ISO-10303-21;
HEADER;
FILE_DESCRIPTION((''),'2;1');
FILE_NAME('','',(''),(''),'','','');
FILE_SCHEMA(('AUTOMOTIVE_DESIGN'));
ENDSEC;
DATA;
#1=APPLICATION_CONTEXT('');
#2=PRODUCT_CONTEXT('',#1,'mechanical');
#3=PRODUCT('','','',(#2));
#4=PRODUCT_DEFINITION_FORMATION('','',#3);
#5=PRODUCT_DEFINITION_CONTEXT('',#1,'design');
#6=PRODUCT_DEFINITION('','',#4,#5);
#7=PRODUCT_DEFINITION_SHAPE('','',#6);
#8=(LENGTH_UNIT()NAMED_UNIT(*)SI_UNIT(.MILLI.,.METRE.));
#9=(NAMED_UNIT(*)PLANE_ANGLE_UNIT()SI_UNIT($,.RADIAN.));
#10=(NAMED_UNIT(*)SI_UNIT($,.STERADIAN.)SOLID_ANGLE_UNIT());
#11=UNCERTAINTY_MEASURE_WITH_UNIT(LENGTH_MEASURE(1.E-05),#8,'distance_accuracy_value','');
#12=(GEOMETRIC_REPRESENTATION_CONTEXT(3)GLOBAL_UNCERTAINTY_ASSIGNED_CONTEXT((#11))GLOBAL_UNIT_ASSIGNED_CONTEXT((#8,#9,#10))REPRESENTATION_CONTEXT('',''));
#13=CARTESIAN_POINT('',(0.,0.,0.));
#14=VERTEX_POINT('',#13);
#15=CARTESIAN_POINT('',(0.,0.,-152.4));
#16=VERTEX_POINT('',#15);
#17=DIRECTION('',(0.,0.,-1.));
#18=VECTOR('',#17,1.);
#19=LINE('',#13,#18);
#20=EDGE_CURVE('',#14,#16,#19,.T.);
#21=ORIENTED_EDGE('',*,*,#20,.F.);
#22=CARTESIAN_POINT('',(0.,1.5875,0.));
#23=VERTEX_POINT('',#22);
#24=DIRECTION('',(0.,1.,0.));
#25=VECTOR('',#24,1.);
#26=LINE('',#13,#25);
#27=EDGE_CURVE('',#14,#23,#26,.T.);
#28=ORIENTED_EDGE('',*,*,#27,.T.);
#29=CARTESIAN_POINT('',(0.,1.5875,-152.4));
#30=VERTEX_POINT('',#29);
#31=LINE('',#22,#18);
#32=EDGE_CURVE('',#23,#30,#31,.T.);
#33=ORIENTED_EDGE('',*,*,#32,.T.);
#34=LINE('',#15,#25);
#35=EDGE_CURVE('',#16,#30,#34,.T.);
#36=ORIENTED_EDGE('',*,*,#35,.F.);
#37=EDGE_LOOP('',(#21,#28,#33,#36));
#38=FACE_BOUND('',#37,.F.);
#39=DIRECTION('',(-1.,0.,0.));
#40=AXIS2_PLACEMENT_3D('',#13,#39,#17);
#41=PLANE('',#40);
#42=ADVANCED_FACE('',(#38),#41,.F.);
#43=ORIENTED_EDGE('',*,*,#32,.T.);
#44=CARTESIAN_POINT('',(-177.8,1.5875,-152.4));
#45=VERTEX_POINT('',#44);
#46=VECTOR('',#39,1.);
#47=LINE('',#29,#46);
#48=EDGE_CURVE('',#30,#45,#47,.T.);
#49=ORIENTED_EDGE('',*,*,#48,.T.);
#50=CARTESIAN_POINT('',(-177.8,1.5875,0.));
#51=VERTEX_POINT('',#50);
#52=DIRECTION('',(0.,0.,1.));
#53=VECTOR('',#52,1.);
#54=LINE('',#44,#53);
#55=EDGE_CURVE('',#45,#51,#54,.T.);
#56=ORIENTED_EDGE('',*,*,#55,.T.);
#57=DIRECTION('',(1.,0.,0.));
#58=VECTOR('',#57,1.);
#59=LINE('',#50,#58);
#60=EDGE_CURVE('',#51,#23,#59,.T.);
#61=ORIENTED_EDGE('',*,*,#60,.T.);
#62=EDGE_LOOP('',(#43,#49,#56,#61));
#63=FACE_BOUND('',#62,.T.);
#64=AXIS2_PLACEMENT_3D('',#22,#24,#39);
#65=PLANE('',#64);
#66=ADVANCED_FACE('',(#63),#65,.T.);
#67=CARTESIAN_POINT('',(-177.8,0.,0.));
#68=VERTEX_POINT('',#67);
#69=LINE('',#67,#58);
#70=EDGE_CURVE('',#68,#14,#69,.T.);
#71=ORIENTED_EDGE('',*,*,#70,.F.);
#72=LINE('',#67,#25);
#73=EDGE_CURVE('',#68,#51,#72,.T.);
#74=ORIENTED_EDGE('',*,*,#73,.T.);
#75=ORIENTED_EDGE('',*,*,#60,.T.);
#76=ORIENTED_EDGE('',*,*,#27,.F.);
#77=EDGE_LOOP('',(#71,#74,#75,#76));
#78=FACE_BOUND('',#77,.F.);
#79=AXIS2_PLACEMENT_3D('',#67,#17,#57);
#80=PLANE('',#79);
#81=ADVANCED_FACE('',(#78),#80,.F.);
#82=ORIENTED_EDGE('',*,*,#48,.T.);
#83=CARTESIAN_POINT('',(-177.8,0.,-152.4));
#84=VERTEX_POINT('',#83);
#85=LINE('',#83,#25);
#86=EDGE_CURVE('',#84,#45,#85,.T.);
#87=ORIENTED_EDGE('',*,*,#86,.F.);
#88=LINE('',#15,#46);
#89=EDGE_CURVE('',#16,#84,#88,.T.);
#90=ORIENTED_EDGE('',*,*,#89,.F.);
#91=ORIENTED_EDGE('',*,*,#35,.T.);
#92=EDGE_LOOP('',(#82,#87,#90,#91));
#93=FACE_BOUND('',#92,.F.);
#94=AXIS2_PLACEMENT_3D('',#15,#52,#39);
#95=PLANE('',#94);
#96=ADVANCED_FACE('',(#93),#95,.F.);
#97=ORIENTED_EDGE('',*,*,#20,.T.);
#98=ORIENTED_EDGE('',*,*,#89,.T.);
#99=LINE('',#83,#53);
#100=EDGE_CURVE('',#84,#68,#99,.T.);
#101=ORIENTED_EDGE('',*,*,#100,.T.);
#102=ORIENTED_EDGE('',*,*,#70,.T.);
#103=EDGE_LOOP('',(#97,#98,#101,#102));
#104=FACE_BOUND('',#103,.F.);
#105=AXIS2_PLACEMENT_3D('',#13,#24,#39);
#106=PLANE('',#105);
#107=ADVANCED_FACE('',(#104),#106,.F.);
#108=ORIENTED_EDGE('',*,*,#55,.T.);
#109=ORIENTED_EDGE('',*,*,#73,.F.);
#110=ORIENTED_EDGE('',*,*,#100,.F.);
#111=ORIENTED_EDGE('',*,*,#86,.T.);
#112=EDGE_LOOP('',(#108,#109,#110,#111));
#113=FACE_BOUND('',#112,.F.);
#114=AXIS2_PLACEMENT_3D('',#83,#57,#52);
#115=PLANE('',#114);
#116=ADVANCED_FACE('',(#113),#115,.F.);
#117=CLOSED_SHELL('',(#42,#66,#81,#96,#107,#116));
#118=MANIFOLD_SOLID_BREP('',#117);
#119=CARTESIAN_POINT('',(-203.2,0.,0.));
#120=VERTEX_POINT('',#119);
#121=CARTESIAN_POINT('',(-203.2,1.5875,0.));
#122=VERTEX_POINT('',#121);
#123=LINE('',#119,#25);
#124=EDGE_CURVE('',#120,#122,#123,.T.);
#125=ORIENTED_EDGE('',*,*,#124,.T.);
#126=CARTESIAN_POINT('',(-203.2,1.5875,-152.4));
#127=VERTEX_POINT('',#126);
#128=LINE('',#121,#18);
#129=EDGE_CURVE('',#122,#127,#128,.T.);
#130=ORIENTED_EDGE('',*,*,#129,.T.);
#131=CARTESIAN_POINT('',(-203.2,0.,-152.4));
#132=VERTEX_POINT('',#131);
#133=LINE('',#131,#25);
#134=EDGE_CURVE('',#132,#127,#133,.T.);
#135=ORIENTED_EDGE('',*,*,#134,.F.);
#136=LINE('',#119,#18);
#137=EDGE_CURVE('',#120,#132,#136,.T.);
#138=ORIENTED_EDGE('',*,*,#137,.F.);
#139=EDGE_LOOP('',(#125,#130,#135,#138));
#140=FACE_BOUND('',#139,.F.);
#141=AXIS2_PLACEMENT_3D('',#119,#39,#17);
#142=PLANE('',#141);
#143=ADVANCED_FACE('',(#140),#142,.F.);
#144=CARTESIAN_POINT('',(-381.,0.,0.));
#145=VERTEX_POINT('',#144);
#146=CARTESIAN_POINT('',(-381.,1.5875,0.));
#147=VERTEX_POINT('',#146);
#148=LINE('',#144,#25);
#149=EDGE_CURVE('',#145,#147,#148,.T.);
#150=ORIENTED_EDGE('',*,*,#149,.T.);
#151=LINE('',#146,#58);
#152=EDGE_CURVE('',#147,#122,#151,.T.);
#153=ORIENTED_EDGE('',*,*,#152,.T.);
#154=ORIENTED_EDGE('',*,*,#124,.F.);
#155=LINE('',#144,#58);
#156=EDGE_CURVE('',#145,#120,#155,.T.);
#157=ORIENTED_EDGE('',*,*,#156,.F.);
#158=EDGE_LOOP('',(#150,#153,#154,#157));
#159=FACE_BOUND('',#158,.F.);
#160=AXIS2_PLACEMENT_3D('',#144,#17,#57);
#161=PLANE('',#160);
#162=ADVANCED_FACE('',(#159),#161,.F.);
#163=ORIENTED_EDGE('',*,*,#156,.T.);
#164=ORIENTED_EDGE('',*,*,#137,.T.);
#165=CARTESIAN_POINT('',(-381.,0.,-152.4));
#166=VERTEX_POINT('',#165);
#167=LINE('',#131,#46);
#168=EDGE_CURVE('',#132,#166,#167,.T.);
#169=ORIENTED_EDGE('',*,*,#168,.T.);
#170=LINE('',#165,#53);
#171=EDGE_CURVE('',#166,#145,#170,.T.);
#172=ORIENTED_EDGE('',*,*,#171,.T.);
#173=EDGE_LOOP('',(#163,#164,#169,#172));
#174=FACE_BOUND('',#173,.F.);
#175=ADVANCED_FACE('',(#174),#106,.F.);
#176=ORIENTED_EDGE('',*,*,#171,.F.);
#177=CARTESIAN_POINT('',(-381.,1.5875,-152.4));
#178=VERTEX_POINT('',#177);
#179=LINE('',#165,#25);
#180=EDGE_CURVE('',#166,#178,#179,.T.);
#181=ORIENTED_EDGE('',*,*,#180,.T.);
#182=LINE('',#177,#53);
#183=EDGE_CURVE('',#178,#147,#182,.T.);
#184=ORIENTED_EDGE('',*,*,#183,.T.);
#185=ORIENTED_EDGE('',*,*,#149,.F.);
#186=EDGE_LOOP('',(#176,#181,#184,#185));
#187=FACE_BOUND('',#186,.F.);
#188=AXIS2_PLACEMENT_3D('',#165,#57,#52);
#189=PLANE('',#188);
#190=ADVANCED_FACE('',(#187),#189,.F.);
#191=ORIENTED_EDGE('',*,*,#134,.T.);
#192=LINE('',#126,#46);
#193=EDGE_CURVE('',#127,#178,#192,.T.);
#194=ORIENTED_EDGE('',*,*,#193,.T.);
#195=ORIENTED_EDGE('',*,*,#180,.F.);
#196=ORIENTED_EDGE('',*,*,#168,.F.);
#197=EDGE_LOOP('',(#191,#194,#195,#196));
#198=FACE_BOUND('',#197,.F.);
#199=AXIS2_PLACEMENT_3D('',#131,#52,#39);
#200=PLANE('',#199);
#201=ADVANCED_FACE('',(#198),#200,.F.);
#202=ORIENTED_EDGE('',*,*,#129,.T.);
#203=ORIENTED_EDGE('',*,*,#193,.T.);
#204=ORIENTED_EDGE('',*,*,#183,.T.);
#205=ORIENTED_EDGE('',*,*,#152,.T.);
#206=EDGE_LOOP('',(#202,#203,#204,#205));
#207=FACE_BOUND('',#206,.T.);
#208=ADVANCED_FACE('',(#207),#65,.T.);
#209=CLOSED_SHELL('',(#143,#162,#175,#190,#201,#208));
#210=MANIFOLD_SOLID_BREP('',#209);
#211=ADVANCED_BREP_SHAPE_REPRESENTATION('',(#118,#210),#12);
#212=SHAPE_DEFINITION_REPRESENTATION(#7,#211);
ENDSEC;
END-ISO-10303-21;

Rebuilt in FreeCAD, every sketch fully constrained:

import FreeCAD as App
import Part
import Sketcher
from FreeCAD import Vector
Q = App.Units.Quantity

doc = App.newDocument("Part")
body = doc.addObject("PartDesign::Body", "Body")
body.AllowCompound = True

sketch1 = body.newObject("Sketcher::SketchObject", "Sketch")
sketch1.AttachmentSupport = (doc.getObject("XZ_Plane"), [""])
sketch1.MapMode = "FlatFace"
sketch1.addGeometry(Part.LineSegment(Vector(-177.8, 0, 0), Vector(0, 0, 0)), False)
sketch1.addGeometry(Part.LineSegment(Vector(0, 0, 0), Vector(0, -152.4, 0)), False)
sketch1.addGeometry(Part.LineSegment(Vector(0, -152.4, 0), Vector(-177.8, -152.4, 0)), False)
sketch1.addGeometry(Part.LineSegment(Vector(-177.8, -152.4, 0), Vector(-177.8, 0, 0)), False)
sketch1.addGeometry(Part.LineSegment(Vector(-381, 0, 0), Vector(-203.2, 0, 0)), False)
sketch1.addGeometry(Part.LineSegment(Vector(-203.2, 0, 0), Vector(-203.2, -152.4, 0)), False)
sketch1.addGeometry(Part.LineSegment(Vector(-203.2, -152.4, 0), Vector(-381, -152.4, 0)), False)
sketch1.addGeometry(Part.LineSegment(Vector(-381, -152.4, 0), Vector(-381, 0, 0)), False)
sketch1.addConstraint(Sketcher.Constraint("Coincident", 0, 2, 1, 1))
sketch1.addConstraint(Sketcher.Constraint("Coincident", 1, 2, 2, 1))
sketch1.addConstraint(Sketcher.Constraint("Coincident", 2, 2, 3, 1))
sketch1.addConstraint(Sketcher.Constraint("Coincident", 3, 2, 0, 1))
sketch1.addConstraint(Sketcher.Constraint("Coincident", 4, 2, 5, 1))
sketch1.addConstraint(Sketcher.Constraint("Coincident", 5, 2, 6, 1))
sketch1.addConstraint(Sketcher.Constraint("Coincident", 6, 2, 7, 1))
sketch1.addConstraint(Sketcher.Constraint("Coincident", 7, 2, 4, 1))
sketch1.addConstraint(Sketcher.Constraint("Horizontal", 0))
sketch1.addConstraint(Sketcher.Constraint("Vertical", 1))
sketch1.addConstraint(Sketcher.Constraint("Horizontal", 2))
sketch1.addConstraint(Sketcher.Constraint("Vertical", 3))
sketch1.addConstraint(Sketcher.Constraint("Horizontal", 4))
sketch1.addConstraint(Sketcher.Constraint("Vertical", 5))
sketch1.addConstraint(Sketcher.Constraint("Horizontal", 6))
sketch1.addConstraint(Sketcher.Constraint("Vertical", 7))
sketch1.addConstraint(Sketcher.Constraint("Coincident", 0, 2, -1, 1))
sketch1.addConstraint(Sketcher.Constraint("PointOnObject", 4, 2, -1))
sketch1.addConstraint(Sketcher.Constraint("Horizontal", 2, 2, 5, 2))
sketch1.addConstraint(Sketcher.Constraint("Equal", 2, 4))
sketch1.addConstraint(Sketcher.Constraint("DistanceX", 0, 1, 0, 2, Q("7 in")))
sketch1.addConstraint(Sketcher.Constraint("DistanceY", 1, 2, 1, 1, Q("6 in")))
sketch1.addConstraint(Sketcher.Constraint("DistanceX", 4, 2, 3, 2, Q("1 in")))
pad1 = body.newObject("PartDesign::Pad", "Pad")
pad1.Profile = sketch1
pad1.Length = Q("0.0625 in")
pad1.Reversed = True

doc.recompute()
